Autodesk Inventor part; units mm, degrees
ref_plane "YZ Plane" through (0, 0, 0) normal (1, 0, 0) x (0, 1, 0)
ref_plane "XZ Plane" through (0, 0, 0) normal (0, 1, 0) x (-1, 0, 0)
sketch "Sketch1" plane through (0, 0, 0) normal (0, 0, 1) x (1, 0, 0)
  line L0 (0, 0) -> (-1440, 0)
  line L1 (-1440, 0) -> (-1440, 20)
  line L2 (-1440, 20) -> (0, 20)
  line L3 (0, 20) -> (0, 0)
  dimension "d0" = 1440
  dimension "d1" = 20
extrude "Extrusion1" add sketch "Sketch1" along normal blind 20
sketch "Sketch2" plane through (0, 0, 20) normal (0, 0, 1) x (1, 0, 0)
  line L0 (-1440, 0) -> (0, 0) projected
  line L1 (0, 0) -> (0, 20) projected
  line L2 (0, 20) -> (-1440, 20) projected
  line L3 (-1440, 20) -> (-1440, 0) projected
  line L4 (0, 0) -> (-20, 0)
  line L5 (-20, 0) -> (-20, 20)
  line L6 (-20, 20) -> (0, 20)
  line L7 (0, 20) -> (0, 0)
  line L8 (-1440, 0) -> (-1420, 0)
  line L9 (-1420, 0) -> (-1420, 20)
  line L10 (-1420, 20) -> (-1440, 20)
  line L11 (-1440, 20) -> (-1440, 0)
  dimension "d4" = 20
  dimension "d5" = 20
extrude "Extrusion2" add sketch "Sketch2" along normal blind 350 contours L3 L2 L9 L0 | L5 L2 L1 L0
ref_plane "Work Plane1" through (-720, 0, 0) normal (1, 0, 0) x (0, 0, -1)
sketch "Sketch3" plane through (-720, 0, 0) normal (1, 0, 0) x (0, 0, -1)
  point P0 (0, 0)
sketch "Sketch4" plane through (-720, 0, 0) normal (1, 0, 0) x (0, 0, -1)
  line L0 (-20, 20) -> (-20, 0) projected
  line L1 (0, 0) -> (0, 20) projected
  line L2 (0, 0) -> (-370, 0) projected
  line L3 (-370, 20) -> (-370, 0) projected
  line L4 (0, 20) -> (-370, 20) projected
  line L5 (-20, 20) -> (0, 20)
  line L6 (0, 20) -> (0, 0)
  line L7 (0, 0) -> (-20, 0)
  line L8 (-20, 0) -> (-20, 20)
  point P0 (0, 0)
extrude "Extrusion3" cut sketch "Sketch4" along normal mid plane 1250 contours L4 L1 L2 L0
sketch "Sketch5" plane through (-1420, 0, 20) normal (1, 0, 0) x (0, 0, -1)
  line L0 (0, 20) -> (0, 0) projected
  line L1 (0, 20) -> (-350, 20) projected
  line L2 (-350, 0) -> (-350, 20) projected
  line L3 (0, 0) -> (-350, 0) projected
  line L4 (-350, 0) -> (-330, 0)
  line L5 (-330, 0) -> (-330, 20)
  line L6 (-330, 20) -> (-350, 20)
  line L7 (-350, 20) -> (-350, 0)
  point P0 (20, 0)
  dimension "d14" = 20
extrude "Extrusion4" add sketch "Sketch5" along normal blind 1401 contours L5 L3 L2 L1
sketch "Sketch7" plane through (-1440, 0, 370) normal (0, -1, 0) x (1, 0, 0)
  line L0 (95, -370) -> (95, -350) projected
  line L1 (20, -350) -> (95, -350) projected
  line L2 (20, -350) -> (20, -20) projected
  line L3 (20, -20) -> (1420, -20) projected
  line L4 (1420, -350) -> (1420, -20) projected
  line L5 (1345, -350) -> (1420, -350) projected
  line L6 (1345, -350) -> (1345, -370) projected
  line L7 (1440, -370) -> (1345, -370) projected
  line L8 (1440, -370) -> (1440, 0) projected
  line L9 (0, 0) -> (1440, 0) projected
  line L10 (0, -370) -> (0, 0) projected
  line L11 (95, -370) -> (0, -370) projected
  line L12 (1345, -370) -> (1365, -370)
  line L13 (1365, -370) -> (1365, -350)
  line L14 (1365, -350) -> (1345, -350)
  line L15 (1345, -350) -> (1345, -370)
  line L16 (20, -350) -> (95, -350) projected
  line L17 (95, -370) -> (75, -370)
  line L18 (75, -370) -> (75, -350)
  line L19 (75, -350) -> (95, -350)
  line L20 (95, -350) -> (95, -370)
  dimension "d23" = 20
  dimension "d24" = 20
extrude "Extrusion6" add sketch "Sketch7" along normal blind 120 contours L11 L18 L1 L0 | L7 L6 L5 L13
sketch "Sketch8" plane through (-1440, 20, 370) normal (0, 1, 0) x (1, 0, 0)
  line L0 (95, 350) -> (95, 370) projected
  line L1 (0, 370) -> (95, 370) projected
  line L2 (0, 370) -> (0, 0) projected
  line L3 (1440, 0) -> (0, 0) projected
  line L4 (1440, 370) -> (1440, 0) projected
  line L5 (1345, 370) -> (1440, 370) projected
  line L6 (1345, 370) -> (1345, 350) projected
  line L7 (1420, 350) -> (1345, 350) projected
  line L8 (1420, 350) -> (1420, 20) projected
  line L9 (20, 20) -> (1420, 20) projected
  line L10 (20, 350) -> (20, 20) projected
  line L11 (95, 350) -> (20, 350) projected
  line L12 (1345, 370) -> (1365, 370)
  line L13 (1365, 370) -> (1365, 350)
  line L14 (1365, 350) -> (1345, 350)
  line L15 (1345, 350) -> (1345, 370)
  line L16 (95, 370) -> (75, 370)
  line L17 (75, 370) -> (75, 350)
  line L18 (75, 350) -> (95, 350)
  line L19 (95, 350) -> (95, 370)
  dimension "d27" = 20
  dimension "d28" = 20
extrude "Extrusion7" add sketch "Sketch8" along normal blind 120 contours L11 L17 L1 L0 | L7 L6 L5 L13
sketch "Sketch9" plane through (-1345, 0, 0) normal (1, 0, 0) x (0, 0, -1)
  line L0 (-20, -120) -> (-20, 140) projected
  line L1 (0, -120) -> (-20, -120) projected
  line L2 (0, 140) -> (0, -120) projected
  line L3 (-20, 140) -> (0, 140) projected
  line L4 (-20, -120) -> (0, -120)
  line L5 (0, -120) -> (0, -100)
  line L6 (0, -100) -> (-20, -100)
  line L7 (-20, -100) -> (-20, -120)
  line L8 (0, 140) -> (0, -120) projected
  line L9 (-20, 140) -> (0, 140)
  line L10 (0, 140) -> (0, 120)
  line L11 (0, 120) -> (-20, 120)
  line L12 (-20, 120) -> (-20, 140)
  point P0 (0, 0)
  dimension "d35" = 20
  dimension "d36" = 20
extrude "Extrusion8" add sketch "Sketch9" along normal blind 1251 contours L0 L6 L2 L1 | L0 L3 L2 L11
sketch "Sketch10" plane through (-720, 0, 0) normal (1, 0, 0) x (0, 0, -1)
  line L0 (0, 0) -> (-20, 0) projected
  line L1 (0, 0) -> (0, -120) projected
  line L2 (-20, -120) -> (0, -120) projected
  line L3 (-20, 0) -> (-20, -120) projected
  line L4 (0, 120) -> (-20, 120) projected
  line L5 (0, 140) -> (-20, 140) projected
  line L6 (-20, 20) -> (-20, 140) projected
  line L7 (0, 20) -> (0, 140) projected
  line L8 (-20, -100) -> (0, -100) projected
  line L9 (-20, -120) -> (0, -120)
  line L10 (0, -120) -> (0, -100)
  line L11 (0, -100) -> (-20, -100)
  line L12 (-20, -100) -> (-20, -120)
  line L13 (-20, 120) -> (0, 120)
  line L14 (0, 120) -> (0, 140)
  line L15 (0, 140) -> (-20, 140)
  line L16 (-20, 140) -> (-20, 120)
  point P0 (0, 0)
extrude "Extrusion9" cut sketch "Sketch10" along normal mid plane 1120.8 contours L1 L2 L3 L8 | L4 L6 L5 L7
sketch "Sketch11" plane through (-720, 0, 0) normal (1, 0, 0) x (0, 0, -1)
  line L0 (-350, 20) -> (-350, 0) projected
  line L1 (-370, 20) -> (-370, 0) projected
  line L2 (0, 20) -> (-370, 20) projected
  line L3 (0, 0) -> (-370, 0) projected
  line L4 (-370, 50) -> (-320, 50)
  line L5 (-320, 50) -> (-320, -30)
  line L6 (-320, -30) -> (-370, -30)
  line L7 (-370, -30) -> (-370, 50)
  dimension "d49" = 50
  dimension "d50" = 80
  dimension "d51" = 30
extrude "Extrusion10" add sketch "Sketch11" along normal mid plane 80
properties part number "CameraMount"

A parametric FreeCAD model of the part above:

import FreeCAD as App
import Part
import Sketcher


def add_polygon(sketch, points):
    """Adds a closed chain of lines whose ends are joined by coincident constraints."""
    first, n = sketch.GeometryCount, len(points)
    for a, b in zip(points, points[1:] + points[:1]):
        sketch.addGeometry(Part.LineSegment(App.Vector(*a, 0), App.Vector(*b, 0)), False)
    for i in range(n):
        sketch.addConstraint(Sketcher.Constraint("Coincident", first + i, 2, first + (i + 1) % n, 1))

doc = App.newDocument("Part")
body = doc.addObject("PartDesign::Body", "Body")
body.AllowCompound = True

sketch1 = doc.addObject("Sketcher::SketchObject", "Sketch")
body.addObject(sketch1)
sketch1.AttachmentSupport = (doc.XY_Plane, [""])
sketch1.MapMode = "FlatFace"
add_polygon(sketch1, [(-1440, 0), (0, 0), (0, 20), (-1440, 20)])
sketch1.addConstraint([
    Sketcher.Constraint("Horizontal", 0),
    Sketcher.Constraint("Vertical", 1),
    Sketcher.Constraint("Horizontal", 2),
    Sketcher.Constraint("Vertical", 3),
    Sketcher.Constraint("Coincident", 0, 2, -1, 1),
    Sketcher.Constraint("DistanceX", 0, 1, 0, 2, 1440.0),
    Sketcher.Constraint("DistanceY", 1, 1, 1, 2, 20.0),
])
pad1 = doc.addObject("PartDesign::Pad", "Pad")
body.addObject(pad1)
pad1.Profile = sketch1
pad1.Length = 20

sketch2 = doc.addObject("Sketcher::SketchObject", "Sketch001")
body.addObject(sketch2)
sketch2.AttachmentSupport = (doc.XY_Plane, [""])
sketch2.MapMode = "FlatFace"
sketch2.AttachmentOffset = App.Placement(App.Vector(0, 0, 20), App.Rotation())
add_polygon(sketch2, [(-1440, 20), (-1440, 0), (-1420, 0), (-1420, 20)])
add_polygon(sketch2, [(-20, 20), (-20, 0), (0, 0), (0, 20)])
sketch2.addConstraint([
    Sketcher.Constraint("Vertical", 0),
    Sketcher.Constraint("Horizontal", 1),
    Sketcher.Constraint("Vertical", 2),
    Sketcher.Constraint("Horizontal", 3),
    Sketcher.Constraint("Vertical", 4),
    Sketcher.Constraint("Horizontal", 5),
    Sketcher.Constraint("Vertical", 6),
    Sketcher.Constraint("Horizontal", 7),
    Sketcher.Constraint("Coincident", 5, 2, -1, 1),
    Sketcher.Constraint("PointOnObject", 0, 2, -1),
    Sketcher.Constraint("Horizontal", 3, 2, 6, 2),
    Sketcher.Constraint("Equal", 3, 5),
    Sketcher.Constraint("Equal", 7, 0),
    Sketcher.Constraint("DistanceX", 1, 1, 1, 2, 20.0),
    Sketcher.Constraint("DistanceX", 0, 2, -1, 1, 1440.0),
])
pad2 = doc.addObject("PartDesign::Pad", "Pad001")
body.addObject(pad2)
pad2.Profile = sketch2
pad2.Length = 350

sketch3 = doc.addObject("Sketcher::SketchObject", "Sketch002")
body.addObject(sketch3)
sketch3.AttachmentSupport = (doc.YZ_Plane, [""])
sketch3.MapMode = "FlatFace"
sketch3.AttachmentOffset = App.Placement(App.Vector(0, 0, -720), App.Rotation())
add_polygon(sketch3, [(20, 0), (20, 20), (0, 20), (0, 0)])
sketch3.addConstraint([
    Sketcher.Constraint("Vertical", 0),
    Sketcher.Constraint("Horizontal", 1),
    Sketcher.Constraint("Vertical", 2),
    Sketcher.Constraint("Horizontal", 3),
    Sketcher.Constraint("Coincident", 2, 2, -1, 1),
    Sketcher.Constraint("Equal", 3, 0),
    Sketcher.Constraint("DistanceX", 1, 2, 1, 1, 20.0),
])
pocket1 = doc.addObject("PartDesign::Pocket", "Pocket")
body.addObject(pocket1)
pocket1.Profile = sketch3
pocket1.Length = 1250
pocket1.Midplane = True

sketch4 = doc.addObject("Sketcher::SketchObject", "Sketch003")
body.addObject(sketch4)
sketch4.AttachmentSupport = (doc.YZ_Plane, [""])
sketch4.MapMode = "FlatFace"
sketch4.AttachmentOffset = App.Placement(App.Vector(0, 0, -1420), App.Rotation())
add_polygon(sketch4, [(0, 350), (20, 350), (20, 370), (0, 370)])
sketch4.addConstraint([
    Sketcher.Constraint("Horizontal", 0),
    Sketcher.Constraint("Vertical", 1),
    Sketcher.Constraint("Horizontal", 2),
    Sketcher.Constraint("Vertical", 3),
    Sketcher.Constraint("PointOnObject", 2, 2, -2),
    Sketcher.Constraint("Equal", 2, 1),
    Sketcher.Constraint("DistanceX", 0, 1, 0, 2, 20.0),
    Sketcher.Constraint("DistanceY", -1, 1, 0, 2, 350.0),
])
pad3 = doc.addObject("PartDesign::Pad", "Pad002")
body.addObject(pad3)
pad3.Profile = sketch4
pad3.Length = 1401

sketch5 = doc.addObject("Sketcher::SketchObject", "Sketch004")
body.addObject(sketch5)
sketch5.AttachmentSupport = (doc.XZ_Plane, [""])
sketch5.MapMode = "FlatFace"
add_polygon(sketch5, [(-1365, 0), (-1345, 0), (-1345, 20), (-1365, 20)])
add_polygon(sketch5, [(-95, 0), (-75, 0), (-75, 20), (-95, 20)])
sketch5.addConstraint([
    Sketcher.Constraint("Horizontal", 0),
    Sketcher.Constraint("Vertical", 1),
    Sketcher.Constraint("Horizontal", 2),
    Sketcher.Constraint("Vertical", 3),
    Sketcher.Constraint("Horizontal", 4),
    Sketcher.Constraint("Vertical", 5),
    Sketcher.Constraint("Horizontal", 6),
    Sketcher.Constraint("Vertical", 7),
    Sketcher.Constraint("PointOnObject", 0, 2, -1),
    Sketcher.Constraint("PointOnObject", 4, 2, -1),
    Sketcher.Constraint("Horizontal", 2, 2, 5, 2),
    Sketcher.Constraint("Equal", 2, 4),
    Sketcher.Constraint("Equal", 6, 1),
    Sketcher.Constraint("DistanceX", 0, 1, 0, 2, 20.0),
    Sketcher.Constraint("DistanceX", 0, 2, -1, 1, 1345.0),
    Sketcher.Constraint("DistanceX", 4, 2, -1, 1, 75.0),
])
pad4 = doc.addObject("PartDesign::Pad", "Pad003")
body.addObject(pad4)
pad4.Profile = sketch5
pad4.Length = 120

sketch6 = doc.addObject("Sketcher::SketchObject", "Sketch005")
body.addObject(sketch6)
sketch6.AttachmentSupport = (doc.XZ_Plane, [""])
sketch6.MapMode = "FlatFace"
sketch6.AttachmentOffset = App.Placement(App.Vector(0, 0, -20), App.Rotation())
add_polygon(sketch6, [(-1365, 20), (-1345, 20), (-1345, 0), (-1365, 0)])
add_polygon(sketch6, [(-95, 20), (-75, 20), (-75, 0), (-95, 0)])
sketch6.addConstraint([
    Sketcher.Constraint("Horizontal", 0),
    Sketcher.Constraint("Vertical", 1),
    Sketcher.Constraint("Horizontal", 2),
    Sketcher.Constraint("Vertical", 3),
    Sketcher.Constraint("Horizontal", 4),
    Sketcher.Constraint("Vertical", 5),
    Sketcher.Constraint("Horizontal", 6),
    Sketcher.Constraint("Vertical", 7),
    Sketcher.Constraint("PointOnObject", 1, 2, -1),
    Sketcher.Constraint("PointOnObject", 5, 2, -1),
    Sketcher.Constraint("Horizontal", 3, 2, 4, 2),
    Sketcher.Constraint("Equal", 2, 4),
    Sketcher.Constraint("Equal", 6, 1),
    Sketcher.Constraint("DistanceX", 0, 1, 0, 2, 20.0),
    Sketcher.Constraint("DistanceX", 0, 2, -1, 1, 1345.0),
    Sketcher.Constraint("DistanceX", 4, 2, -1, 1, 75.0),
])
pad5 = doc.addObject("PartDesign::Pad", "Pad004")
body.addObject(pad5)
pad5.Profile = sketch6
pad5.Length = 120
pad5.Reversed = True

sketch7 = doc.addObject("Sketcher::SketchObject", "Sketch006")
body.addObject(sketch7)
sketch7.AttachmentSupport = (doc.YZ_Plane, [""])
sketch7.MapMode = "FlatFace"
sketch7.AttachmentOffset = App.Placement(App.Vector(0, 0, -1345), App.Rotation())
add_polygon(sketch7, [(-100, 20), (-120, 20), (-120, 0), (-100, 0)])
add_polygon(sketch7, [(140, 20), (120, 20), (120, 0), (140, 0)])
sketch7.addConstraint([
    Sketcher.Constraint("Horizontal", 0),
    Sketcher.Constraint("Vertical", 1),
    Sketcher.Constraint("Horizontal", 2),
    Sketcher.Constraint("Vertical", 3),
    Sketcher.Constraint("Horizontal", 4),
    Sketcher.Constraint("Vertical", 5),
    Sketcher.Constraint("Horizontal", 6),
    Sketcher.Constraint("Vertical", 7),
    Sketcher.Constraint("Symmetric", 1, 2, 5, 2, -1, 1),
    Sketcher.Constraint("PointOnObject", 1, 2, -1),
    Sketcher.Constraint("Horizontal", 3, 2, 4, 2),
    Sketcher.Constraint("Equal", 2, 4),
    Sketcher.Constraint("Equal", 6, 1),
    Sketcher.Constraint("DistanceX", 0, 2, 0, 1, 20.0),
    Sketcher.Constraint("DistanceX", 0, 2, -1, 1, 120.0),
])
pad6 = doc.addObject("PartDesign::Pad", "Pad005")
body.addObject(pad6)
pad6.Profile = sketch7
pad6.Length = 1251

sketch8 = doc.addObject("Sketcher::SketchObject", "Sketch007")
body.addObject(sketch8)
sketch8.AttachmentSupport = (doc.YZ_Plane, [""])
sketch8.MapMode = "FlatFace"
sketch8.AttachmentOffset = App.Placement(App.Vector(0, 0, -720), App.Rotation())
add_polygon(sketch8, [(-120, 0), (-100, 0), (-100, 20), (-120, 20)])
add_polygon(sketch8, [(120, 20), (120, 0), (140, 0), (140, 20)])
sketch8.addConstraint([
    Sketcher.Constraint("Horizontal", 0),
    Sketcher.Constraint("Vertical", 1),
    Sketcher.Constraint("Horizontal", 2),
    Sketcher.Constraint("Vertical", 3),
    Sketcher.Constraint("Vertical", 4),
    Sketcher.Constraint("Horizontal", 5),
    Sketcher.Constraint("Vertical", 6),
    Sketcher.Constraint("Horizontal", 7),
    Sketcher.Constraint("Symmetric", 3, 2, 4, 2, -1, 1),
    Sketcher.Constraint("PointOnObject", 0, 2, -1),
    Sketcher.Constraint("Horizontal", 2, 2, 6, 2),
    Sketcher.Constraint("Equal", 2, 5),
    Sketcher.Constraint("Equal", 7, 1),
    Sketcher.Constraint("DistanceX", 0, 1, 0, 2, 20.0),
    Sketcher.Constraint("DistanceX", 0, 2, -1, 1, 100.0),
])
pocket2 = doc.addObject("PartDesign::Pocket", "Pocket001")
body.addObject(pocket2)
pocket2.Profile = sketch8
pocket2.Length = 1120.8
pocket2.Midplane = True

sketch9 = doc.addObject("Sketcher::SketchObject", "Sketch008")
body.addObject(sketch9)
sketch9.AttachmentSupport = (doc.YZ_Plane, [""])
sketch9.MapMode = "FlatFace"
sketch9.AttachmentOffset = App.Placement(App.Vector(0, 0, -720), App.Rotation())
add_polygon(sketch9, [(50, 320), (50, 370), (-30, 370), (-30, 320)])
sketch9.addConstraint([
    Sketcher.Constraint("Vertical", 0),
    Sketcher.Constraint("Horizontal", 1),
    Sketcher.Constraint("Vertical", 2),
    Sketcher.Constraint("Horizontal", 3),
    Sketcher.Constraint("DistanceX", 1, 2, 1, 1, 80.0),
    Sketcher.Constraint("DistanceY", 0, 1, 0, 2, 50.0),
    Sketcher.Constraint("DistanceX", -1, 1, 0, 2, 50.0),
    Sketcher.Constraint("DistanceY", -1, 1, 0, 2, 370.0),
])
pad7 = doc.addObject("PartDesign::Pad", "Pad006")
body.addObject(pad7)
pad7.Profile = sketch9
pad7.Length = 80
pad7.Midplane = True

doc.recompute()
